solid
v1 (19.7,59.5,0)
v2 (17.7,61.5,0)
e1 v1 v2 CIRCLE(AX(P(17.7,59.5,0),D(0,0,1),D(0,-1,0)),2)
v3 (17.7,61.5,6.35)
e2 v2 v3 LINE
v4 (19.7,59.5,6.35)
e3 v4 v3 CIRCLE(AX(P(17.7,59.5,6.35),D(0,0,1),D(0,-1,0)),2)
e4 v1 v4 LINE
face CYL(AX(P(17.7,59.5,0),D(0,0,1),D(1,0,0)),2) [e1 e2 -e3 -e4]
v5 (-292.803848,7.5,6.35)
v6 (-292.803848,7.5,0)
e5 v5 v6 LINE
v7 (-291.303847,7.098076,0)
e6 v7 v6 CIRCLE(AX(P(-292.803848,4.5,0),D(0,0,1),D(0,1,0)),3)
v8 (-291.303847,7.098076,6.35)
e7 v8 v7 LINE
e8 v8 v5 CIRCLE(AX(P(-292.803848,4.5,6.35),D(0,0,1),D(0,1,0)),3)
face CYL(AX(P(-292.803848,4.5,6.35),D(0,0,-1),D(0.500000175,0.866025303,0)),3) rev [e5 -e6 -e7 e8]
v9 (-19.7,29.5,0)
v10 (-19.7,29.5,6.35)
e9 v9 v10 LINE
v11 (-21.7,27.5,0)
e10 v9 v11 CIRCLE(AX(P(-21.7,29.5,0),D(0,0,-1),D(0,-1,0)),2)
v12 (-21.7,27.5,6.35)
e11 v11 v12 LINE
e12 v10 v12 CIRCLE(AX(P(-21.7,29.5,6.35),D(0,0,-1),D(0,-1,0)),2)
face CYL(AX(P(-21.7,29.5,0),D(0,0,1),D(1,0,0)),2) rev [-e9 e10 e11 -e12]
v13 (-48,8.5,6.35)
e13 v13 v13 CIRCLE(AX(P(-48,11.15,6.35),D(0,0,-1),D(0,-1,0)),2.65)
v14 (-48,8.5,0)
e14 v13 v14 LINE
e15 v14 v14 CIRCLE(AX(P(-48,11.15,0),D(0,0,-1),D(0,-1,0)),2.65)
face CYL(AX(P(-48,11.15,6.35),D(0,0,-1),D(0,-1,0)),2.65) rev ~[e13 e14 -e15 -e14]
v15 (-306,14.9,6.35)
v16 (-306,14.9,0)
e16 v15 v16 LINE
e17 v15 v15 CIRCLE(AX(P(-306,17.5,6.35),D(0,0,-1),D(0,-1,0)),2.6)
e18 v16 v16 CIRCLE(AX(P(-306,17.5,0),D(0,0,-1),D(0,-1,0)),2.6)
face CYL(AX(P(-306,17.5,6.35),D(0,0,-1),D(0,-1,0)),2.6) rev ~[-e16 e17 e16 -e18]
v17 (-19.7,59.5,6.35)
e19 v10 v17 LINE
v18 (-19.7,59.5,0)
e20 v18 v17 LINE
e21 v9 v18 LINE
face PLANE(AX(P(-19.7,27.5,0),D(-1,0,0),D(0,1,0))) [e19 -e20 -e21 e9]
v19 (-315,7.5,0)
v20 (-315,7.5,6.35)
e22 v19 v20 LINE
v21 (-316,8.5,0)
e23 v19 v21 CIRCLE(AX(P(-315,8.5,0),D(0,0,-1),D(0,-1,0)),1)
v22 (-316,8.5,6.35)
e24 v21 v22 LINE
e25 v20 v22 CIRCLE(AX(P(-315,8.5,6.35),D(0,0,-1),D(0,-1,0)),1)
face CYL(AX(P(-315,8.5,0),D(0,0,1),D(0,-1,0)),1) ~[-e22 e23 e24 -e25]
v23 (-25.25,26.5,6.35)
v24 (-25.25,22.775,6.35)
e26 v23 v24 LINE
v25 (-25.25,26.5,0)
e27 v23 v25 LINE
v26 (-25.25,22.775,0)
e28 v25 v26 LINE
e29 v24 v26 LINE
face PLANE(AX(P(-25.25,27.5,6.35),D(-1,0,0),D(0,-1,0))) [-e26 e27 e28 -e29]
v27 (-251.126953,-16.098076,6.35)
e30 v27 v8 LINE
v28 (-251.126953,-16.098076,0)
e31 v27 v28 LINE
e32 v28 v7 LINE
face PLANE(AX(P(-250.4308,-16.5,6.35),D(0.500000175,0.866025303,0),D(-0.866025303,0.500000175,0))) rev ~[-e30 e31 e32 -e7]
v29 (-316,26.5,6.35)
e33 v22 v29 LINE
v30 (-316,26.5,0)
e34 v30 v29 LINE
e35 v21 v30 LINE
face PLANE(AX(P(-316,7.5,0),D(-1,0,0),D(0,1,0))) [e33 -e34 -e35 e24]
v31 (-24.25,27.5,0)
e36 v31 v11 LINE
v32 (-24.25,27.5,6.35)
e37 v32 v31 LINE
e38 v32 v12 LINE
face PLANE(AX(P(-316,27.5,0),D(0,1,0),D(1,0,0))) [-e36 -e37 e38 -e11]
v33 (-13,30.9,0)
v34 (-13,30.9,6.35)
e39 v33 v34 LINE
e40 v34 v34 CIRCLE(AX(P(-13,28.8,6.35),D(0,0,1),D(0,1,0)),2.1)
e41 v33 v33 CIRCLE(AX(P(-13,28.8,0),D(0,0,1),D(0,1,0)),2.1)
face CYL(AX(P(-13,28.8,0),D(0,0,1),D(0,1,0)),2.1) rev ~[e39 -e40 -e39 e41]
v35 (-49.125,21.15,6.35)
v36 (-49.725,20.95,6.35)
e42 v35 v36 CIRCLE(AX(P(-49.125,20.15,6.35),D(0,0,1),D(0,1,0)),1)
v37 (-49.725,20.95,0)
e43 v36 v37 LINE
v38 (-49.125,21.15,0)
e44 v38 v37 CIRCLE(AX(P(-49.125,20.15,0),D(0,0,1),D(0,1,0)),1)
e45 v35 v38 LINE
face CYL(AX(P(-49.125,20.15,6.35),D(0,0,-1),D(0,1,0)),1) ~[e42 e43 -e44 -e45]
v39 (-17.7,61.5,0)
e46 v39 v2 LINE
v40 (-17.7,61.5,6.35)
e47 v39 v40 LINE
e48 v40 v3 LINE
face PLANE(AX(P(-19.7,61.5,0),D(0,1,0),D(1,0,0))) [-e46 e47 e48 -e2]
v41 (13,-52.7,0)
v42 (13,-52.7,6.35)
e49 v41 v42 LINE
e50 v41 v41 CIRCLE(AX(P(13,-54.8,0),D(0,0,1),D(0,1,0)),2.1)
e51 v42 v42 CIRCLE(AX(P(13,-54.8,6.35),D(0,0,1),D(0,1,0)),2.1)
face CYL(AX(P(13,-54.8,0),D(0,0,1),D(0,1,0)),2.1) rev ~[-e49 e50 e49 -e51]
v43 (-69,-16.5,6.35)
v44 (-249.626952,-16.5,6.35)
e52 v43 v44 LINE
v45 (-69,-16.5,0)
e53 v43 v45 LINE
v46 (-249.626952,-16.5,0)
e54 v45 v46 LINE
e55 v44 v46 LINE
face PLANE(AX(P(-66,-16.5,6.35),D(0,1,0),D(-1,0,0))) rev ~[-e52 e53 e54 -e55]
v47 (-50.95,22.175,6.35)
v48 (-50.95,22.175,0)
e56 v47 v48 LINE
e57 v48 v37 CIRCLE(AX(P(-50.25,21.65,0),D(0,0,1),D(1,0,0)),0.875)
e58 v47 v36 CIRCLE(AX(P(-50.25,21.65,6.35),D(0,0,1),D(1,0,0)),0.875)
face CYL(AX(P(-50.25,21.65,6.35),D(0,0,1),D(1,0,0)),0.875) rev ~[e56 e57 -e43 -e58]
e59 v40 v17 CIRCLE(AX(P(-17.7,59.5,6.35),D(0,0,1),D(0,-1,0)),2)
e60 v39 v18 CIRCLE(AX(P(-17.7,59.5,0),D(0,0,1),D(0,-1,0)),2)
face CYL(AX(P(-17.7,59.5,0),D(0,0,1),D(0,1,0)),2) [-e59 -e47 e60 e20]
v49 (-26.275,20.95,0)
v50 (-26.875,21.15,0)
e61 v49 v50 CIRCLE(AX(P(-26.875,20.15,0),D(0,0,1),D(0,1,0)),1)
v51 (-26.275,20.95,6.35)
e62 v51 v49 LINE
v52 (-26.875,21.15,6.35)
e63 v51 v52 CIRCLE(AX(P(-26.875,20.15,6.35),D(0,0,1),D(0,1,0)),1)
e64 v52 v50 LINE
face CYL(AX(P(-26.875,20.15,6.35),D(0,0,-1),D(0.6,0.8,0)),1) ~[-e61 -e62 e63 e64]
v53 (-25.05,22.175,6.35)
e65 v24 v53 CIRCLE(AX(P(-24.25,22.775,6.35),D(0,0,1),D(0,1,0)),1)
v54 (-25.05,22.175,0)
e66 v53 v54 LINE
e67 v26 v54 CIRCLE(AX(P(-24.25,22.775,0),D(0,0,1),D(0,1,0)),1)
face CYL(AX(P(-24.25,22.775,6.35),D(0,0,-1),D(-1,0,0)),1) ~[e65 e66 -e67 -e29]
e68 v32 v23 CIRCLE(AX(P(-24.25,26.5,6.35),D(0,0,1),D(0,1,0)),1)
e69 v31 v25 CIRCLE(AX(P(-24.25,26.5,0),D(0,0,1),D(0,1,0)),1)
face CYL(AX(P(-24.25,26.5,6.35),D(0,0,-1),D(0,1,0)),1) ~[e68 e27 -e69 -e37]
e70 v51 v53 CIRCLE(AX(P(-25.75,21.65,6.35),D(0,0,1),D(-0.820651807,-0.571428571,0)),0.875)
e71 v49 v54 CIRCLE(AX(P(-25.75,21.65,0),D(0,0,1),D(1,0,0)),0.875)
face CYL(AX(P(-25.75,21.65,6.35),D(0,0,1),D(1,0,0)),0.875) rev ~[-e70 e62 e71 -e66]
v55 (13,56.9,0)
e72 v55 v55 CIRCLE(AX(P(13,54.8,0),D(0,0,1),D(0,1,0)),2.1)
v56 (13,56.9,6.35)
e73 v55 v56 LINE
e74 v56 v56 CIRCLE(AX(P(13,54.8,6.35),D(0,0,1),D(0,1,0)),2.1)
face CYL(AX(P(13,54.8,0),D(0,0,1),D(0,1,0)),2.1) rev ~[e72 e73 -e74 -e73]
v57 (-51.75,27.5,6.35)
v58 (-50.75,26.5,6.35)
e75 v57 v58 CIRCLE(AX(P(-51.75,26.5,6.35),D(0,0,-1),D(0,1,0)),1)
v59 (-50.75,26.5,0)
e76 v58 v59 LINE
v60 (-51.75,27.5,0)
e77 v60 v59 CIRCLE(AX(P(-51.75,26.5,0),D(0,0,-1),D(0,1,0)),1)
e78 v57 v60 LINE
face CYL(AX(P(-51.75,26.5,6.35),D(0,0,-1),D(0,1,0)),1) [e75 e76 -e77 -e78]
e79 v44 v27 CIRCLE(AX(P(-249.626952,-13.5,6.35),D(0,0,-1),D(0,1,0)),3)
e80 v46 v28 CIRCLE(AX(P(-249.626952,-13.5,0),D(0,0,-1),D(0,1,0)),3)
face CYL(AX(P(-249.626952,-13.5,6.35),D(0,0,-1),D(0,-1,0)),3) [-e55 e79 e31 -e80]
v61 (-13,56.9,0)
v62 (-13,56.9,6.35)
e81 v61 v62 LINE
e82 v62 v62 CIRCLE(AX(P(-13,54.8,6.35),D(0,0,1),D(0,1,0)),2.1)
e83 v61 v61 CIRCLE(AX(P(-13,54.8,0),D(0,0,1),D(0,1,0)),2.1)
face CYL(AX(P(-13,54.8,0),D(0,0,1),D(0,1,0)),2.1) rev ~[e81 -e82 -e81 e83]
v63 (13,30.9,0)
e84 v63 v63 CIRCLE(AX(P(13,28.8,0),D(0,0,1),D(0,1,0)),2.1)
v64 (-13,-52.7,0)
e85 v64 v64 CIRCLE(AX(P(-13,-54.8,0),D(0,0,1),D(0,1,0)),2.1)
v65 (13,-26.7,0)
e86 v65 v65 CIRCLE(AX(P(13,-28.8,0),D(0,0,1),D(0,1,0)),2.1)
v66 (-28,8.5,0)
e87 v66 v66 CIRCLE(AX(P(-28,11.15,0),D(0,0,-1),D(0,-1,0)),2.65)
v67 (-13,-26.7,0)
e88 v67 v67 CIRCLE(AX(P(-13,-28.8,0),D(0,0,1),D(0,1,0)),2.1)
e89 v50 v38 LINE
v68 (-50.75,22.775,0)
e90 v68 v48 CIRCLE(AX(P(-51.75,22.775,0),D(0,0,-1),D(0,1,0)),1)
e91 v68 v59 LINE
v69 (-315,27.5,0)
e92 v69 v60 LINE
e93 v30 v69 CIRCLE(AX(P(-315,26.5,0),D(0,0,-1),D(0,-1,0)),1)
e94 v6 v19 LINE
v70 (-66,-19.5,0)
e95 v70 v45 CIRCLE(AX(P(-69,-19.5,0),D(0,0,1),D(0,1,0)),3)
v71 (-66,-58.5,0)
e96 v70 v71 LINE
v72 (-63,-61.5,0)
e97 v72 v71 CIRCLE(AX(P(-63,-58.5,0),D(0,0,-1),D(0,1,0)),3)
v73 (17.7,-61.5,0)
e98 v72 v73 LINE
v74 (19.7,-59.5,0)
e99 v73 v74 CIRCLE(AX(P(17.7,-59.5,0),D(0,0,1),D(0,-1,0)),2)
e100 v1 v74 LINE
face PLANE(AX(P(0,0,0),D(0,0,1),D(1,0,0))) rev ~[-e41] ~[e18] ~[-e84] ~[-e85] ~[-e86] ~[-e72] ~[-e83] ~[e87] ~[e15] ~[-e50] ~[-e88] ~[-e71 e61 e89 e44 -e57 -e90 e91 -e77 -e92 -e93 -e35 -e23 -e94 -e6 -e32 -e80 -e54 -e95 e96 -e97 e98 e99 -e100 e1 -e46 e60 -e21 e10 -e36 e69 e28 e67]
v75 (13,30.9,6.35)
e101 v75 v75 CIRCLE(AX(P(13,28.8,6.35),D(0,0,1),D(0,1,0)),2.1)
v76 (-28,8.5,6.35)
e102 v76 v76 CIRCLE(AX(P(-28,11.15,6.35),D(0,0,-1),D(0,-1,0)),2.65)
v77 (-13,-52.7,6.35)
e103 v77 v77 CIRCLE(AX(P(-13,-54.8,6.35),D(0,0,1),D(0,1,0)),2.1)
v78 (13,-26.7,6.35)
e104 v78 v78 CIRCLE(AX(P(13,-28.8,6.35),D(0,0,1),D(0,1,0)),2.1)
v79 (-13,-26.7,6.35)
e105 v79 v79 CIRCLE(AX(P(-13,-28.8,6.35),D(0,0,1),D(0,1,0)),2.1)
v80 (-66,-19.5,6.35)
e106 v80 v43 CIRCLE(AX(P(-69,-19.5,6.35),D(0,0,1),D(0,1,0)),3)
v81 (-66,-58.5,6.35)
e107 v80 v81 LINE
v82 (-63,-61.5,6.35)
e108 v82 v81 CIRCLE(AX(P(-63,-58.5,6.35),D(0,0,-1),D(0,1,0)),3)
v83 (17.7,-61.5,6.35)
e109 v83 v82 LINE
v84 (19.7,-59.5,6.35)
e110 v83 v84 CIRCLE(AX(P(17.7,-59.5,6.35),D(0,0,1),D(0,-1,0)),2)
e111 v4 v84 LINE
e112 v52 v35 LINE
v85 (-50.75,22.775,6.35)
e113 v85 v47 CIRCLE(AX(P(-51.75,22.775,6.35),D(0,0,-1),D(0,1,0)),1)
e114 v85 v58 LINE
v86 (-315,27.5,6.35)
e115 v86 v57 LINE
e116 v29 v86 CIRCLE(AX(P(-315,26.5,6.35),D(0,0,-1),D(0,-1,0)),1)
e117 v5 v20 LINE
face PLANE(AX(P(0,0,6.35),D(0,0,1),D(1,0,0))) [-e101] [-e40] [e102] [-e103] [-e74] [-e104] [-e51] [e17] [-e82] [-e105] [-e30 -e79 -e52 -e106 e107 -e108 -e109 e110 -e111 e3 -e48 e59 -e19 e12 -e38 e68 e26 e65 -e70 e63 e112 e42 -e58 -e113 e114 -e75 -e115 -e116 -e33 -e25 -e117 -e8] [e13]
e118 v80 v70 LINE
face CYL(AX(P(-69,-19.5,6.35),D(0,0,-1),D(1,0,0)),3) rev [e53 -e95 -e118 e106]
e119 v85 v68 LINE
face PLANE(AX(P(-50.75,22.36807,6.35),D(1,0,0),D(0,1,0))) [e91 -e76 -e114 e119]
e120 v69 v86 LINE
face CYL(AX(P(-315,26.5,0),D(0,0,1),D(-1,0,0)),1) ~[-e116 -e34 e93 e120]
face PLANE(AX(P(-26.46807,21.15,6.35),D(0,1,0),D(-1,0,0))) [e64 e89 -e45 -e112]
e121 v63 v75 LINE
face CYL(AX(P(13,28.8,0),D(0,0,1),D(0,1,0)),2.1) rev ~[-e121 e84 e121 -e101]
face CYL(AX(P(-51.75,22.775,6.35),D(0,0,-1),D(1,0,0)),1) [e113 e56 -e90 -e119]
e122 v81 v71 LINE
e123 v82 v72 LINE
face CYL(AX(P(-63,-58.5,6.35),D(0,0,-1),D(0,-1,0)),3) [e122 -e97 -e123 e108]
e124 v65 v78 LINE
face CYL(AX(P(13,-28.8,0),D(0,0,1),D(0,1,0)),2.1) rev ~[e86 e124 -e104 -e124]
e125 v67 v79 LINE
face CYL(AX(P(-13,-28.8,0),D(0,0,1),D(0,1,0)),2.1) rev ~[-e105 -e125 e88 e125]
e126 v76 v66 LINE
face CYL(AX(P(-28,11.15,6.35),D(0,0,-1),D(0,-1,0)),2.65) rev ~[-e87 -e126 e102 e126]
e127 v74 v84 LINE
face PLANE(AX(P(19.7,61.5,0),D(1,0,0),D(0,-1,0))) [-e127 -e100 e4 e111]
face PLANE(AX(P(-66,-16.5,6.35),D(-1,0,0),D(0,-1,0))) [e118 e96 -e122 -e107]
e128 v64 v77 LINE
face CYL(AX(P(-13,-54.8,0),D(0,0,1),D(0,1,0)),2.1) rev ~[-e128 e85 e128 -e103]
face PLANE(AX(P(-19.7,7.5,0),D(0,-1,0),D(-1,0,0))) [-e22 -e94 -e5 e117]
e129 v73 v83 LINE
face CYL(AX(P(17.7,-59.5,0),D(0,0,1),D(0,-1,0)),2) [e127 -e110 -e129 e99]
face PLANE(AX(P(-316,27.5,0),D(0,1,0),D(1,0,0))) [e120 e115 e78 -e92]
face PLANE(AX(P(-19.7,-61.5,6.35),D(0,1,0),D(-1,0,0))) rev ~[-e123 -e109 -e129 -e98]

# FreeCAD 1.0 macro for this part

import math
import FreeCAD as App
import Part
import Sketcher
Q = App.Units.Quantity


def edges_at(feature, points):
    """Names of the edges that pass closest to the given points."""
    edges = feature.Shape.Edges
    near = lambda p: min(range(len(edges)), key=lambda i: edges[i].distToShape(Part.Vertex(*p))[0])
    return sorted({f"Edge{near(p) + 1}" for p in points})

doc = App.newDocument("Part")
body = doc.addObject("PartDesign::Body", "Body")

sketch1 = doc.addObject("Sketcher::SketchObject", "Sketch")
body.addObject(sketch1)
sketch1.AttachmentSupport = (doc.XY_Plane, [""])
sketch1.MapMode = "FlatFace"
sketch1.addGeometry([
    Part.LineSegment(App.Vector(-20, -62, 0), App.Vector(20, -62, 0)),
    Part.LineSegment(App.Vector(20, -62, 0), App.Vector(20, 62, 0)),
    Part.LineSegment(App.Vector(20, 62, 0), App.Vector(-20, 62, 0)),
    Part.LineSegment(App.Vector(-20, 62, 0), App.Vector(-20, 28, 0)),
    Part.LineSegment(App.Vector(-20, 28, 0), App.Vector(-316, 28, 0)),
    Part.LineSegment(App.Vector(-316, 28, 0), App.Vector(-316, 8, 0)),
    Part.LineSegment(App.Vector(-316, 8, 0), App.Vector(-20, 8, 0)),
    Part.LineSegment(App.Vector(-20, 8, 0), App.Vector(-20, -62, 0)),
], False)
sketch1.addConstraint([
    Sketcher.Constraint("Coincident", 0, 2, 1, 1),
    Sketcher.Constraint("Coincident", 1, 2, 2, 1),
    Sketcher.Constraint("Coincident", 2, 2, 3, 1),
    Sketcher.Constraint("Coincident", 3, 2, 4, 1),
    Sketcher.Constraint("Coincident", 4, 2, 5, 1),
    Sketcher.Constraint("Coincident", 5, 2, 6, 1),
    Sketcher.Constraint("Coincident", 6, 2, 7, 1),
    Sketcher.Constraint("Coincident", 7, 2, 0, 1),
    Sketcher.Constraint("Horizontal", 0),
    Sketcher.Constraint("Vertical", 1),
    Sketcher.Constraint("Horizontal", 2),
    Sketcher.Constraint("Vertical", 3),
    Sketcher.Constraint("Horizontal", 4),
    Sketcher.Constraint("Vertical", 5),
    Sketcher.Constraint("Horizontal", 6),
    Sketcher.Constraint("Vertical", 7),
    Sketcher.Constraint("Symmetric", 0, 2, 2, 2, -1, 1),
    Sketcher.Constraint("Vertical", 3, 2, 6, 2),
    Sketcher.Constraint("DistanceY", 5, 2, 5, 1, 20.0),
    Sketcher.Constraint("DistanceX", 0, 1, 0, 2, 39.4),
    Sketcher.Constraint("DistanceX", 4, 2, -1, 1, 316.0),
    Sketcher.Constraint("DistanceY", 1, 1, 1, 2, 123.0),
    Sketcher.Constraint("DistanceY", 3, 2, 3, 1, 34.0),
])
pad1 = doc.addObject("PartDesign::Pad", "Pad")
body.addObject(pad1)
pad1.Profile = sketch1
pad1.Length = 6.35

sketch2 = doc.addObject("Sketcher::SketchObject", "Sketch001")
body.addObject(sketch2)
sketch2.AttachmentSupport = (doc.XY_Plane, [""])
sketch2.MapMode = "FlatFace"
sketch2.AttachmentOffset = App.Placement(App.Vector(0, 0, 6.35), App.Rotation())
sketch2.addGeometry([
    Part.LineSegment(App.Vector(-66, -62, 0), App.Vector(-20, -62, 0)),
    Part.LineSegment(App.Vector(-20, -62, 0), App.Vector(-20, 8, 0)),
    Part.LineSegment(App.Vector(-20, 8, 0), App.Vector(-292, 8, 0)),
    Part.LineSegment(App.Vector(-292, 8, 0), App.Vector(-250, -16, 0)),
    Part.LineSegment(App.Vector(-250, -16, 0), App.Vector(-66, -16, 0)),
    Part.LineSegment(App.Vector(-66, -16, 0), App.Vector(-66, -62, 0)),
], False)
sketch2.addConstraint([
    Sketcher.Constraint("Coincident", 0, 2, 1, 1),
    Sketcher.Constraint("Coincident", 1, 2, 2, 1),
    Sketcher.Constraint("Coincident", 2, 2, 3, 1),
    Sketcher.Constraint("Coincident", 3, 2, 4, 1),
    Sketcher.Constraint("Coincident", 4, 2, 5, 1),
    Sketcher.Constraint("Coincident", 5, 2, 0, 1),
    Sketcher.Constraint("Horizontal", 0),
    Sketcher.Constraint("Vertical", 1),
    Sketcher.Constraint("Horizontal", 2),
    Sketcher.Constraint("Horizontal", 4),
    Sketcher.Constraint("Vertical", 5),
    Sketcher.Constraint("DistanceY", 3, 2, 2, 2, 24.0),
    Sketcher.Constraint("DistanceY", 1, 1, 1, 2, 69.0),
    Sketcher.Constraint("Angle", 3, Q("-30 deg")),
    Sketcher.Constraint("DistanceX", 0, 1, 0, 2, 46.3),
    Sketcher.Constraint("DistanceX", 2, 2, 2, 1, 272.3),
    Sketcher.Constraint("DistanceX", 2, 2, -1, 1, 292.0),
    Sketcher.Constraint("DistanceY", 0, 2, -1, 1, 61.5),
])
pad2 = doc.addObject("PartDesign::Pad", "Pad001")
body.addObject(pad2)
pad2.Profile = sketch2
pad2.Length = 6.35
pad2.Reversed = True

sketch3 = doc.addObject("Sketcher::SketchObject", "Sketch002")
body.addObject(sketch3)
sketch3.AttachmentSupport = (doc.XY_Plane, [""])
sketch3.MapMode = "FlatFace"
sketch3.addGeometry([
    Part.Circle(App.Vector(-13, 54.8, 0), App.Vector(0, 0, 1), 2.1),
    Part.Circle(App.Vector(13, 54.8, 0), App.Vector(0, 0, 1), 2.1),
    Part.Circle(App.Vector(13, 28.8, 0), App.Vector(0, 0, 1), 2.1),
    Part.Circle(App.Vector(-13, 28.8, 0), App.Vector(0, 0, 1), 2.1),
    Part.Circle(App.Vector(-13, -28.8, 0), App.Vector(0, 0, 1), 2.1),
    Part.Circle(App.Vector(13, -28.8, 0), App.Vector(0, 0, 1), 2.1),
    Part.Circle(App.Vector(13, -54.8, 0), App.Vector(0, 0, 1), 2.1),
    Part.Circle(App.Vector(-13, -54.8, 0), App.Vector(0, 0, 1), 2.1),
], False)
sketch3.addConstraint([
    Sketcher.Constraint("Equal", 0, 1),
    Sketcher.Constraint("Equal", 1, 2),
    Sketcher.Constraint("Equal", 2, 3),
    Sketcher.Constraint("Equal", 3, 4),
    Sketcher.Constraint("Equal", 4, 5),
    Sketcher.Constraint("Equal", 5, 6),
    Sketcher.Constraint("Equal", 6, 7),
    Sketcher.Constraint("Symmetric", 2, 3, 4, 3, -1, 1),
    Sketcher.Constraint("Symmetric", 3, 3, 5, 3, -1, 1),
    Sketcher.Constraint("Symmetric", 0, 3, 6, 3, -1, 1),
    Sketcher.Constraint("Symmetric", 1, 3, 7, 3, -1, 1),
    Sketcher.Constraint("Symmetric", 0, 3, 1, 3, -2),
    Sketcher.Constraint("Symmetric", 2, 3, 3, 3, -2),
    Sketcher.Constraint("Vertical", 1, 3, 2, 3),
    Sketcher.Constraint("Diameter", 0, 4.2),
    Sketcher.Constraint("DistanceX", 0, 3, -1, 1, 13.0),
    Sketcher.Constraint("DistanceY", 2, 3, 1, 3, 26.0),
    Sketcher.Constraint("DistanceY", -1, 1, 0, 3, 54.8),
])
doc.recompute()
hole = doc.addObject("PartDesign::Hole", "Hole")
body.addObject(hole)
hole.Profile = sketch3
hole.ThreadType = "None"
hole.Diameter = 4.2
hole.DepthType = "ThroughAll"
hole.Reversed = True

sketch4 = doc.addObject("Sketcher::SketchObject", "Sketch003")
body.addObject(sketch4)
sketch4.AttachmentSupport = (doc.XY_Plane, [""])
sketch4.MapMode = "FlatFace"
sketch4.AttachmentOffset = App.Placement(App.Vector(0, 0, 6.35), App.Rotation())
sketch4.addGeometry(Part.Circle(App.Vector(-306, 17.5, 0), App.Vector(0, 0, 1), 2.6), False)
sketch4.addConstraint([
    Sketcher.Constraint("Diameter", 0, 5.2),
    Sketcher.Constraint("DistanceX", 0, 3, -1, 1, 306.0),
    Sketcher.Constraint("DistanceY", -1, 1, 0, 3, 17.5),
])
doc.recompute()
hole2 = doc.addObject("PartDesign::Hole", "Hole001")
body.addObject(hole2)
hole2.Profile = sketch4
hole2.ThreadType = "None"
hole2.Diameter = 5.2
hole2.DepthType = "ThroughAll"

sketch5 = doc.addObject("Sketcher::SketchObject", "Sketch004")
body.addObject(sketch5)
sketch5.AttachmentSupport = (doc.XY_Plane, [""])
sketch5.MapMode = "FlatFace"
sketch5.AttachmentOffset = App.Placement(App.Vector(0, 0, 6.35), App.Rotation())
sketch5.addGeometry([
    Part.LineSegment(App.Vector(-25.2, 27.5, 0), App.Vector(-50.8, 27.5, 0)),
    Part.LineSegment(App.Vector(-50.8, 27.5, 0), App.Vector(-50.8, 22.4, 0)),
    Part.ArcOfCircle(Part.Circle(App.Vector(-50.2, 21.6, 0), App.Vector(0, 0, 1), 0.9), math.radians(125), math.radians(325)),
    Part.LineSegment(App.Vector(-49.5, 21.1, 0), App.Vector(-26.5, 21.1, 0)),
    Part.ArcOfCircle(Part.Circle(App.Vector(-25.8, 21.6, 0), App.Vector(0, 0, 1), 0.9), math.radians(-145), math.radians(55)),
    Part.LineSegment(App.Vector(-25.2, 22.4, 0), App.Vector(-25.2, 27.5, 0)),
], False)
sketch5.addConstraint([
    Sketcher.Constraint("Coincident", 0, 2, 1, 1),
    Sketcher.Constraint("Coincident", 1, 2, 2, 1),
    Sketcher.Constraint("Coincident", 2, 2, 3, 1),
    Sketcher.Constraint("Coincident", 3, 2, 4, 1),
    Sketcher.Constraint("Coincident", 4, 2, 5, 1),
    Sketcher.Constraint("Coincident", 5, 2, 0, 1),
    Sketcher.Constraint("Horizontal", 0),
    Sketcher.Constraint("Vertical", 1),
    Sketcher.Constraint("Horizontal", 3),
    Sketcher.Constraint("Vertical", 5),
    Sketcher.Constraint("Equal", 2, 4),
    Sketcher.Constraint("Horizontal", 2, 3, 4, 3),
    Sketcher.Constraint("Horizontal", 1, 2, 4, 2),
    Sketcher.Constraint("DistanceX", 0, 2, 0, 1, 25.5),
    Sketcher.Constraint("Radius", 2, 0.875),
    Sketcher.Constraint("DistanceX", 0, 2, 2, 3, 0.5),
    Sketcher.Constraint("DistanceY", 2, 2, 2, 3, 0.5),
    Sketcher.Constraint("DistanceY", -1, 1, 0, 2, 27.5),
    Sketcher.Constraint("DistanceY", 1, 2, 1, 1, 5.132),
    Sketcher.Constraint("DistanceX", 2, 3, -1, 1, 50.25),
])
pocket1 = doc.addObject("PartDesign::Pocket", "Pocket")
body.addObject(pocket1)
pocket1.Profile = sketch5
pocket1.Type = "ThroughAll"

sketch6 = doc.addObject("Sketcher::SketchObject", "Sketch005")
body.addObject(sketch6)
sketch6.AttachmentSupport = (doc.XY_Plane, [""])
sketch6.MapMode = "FlatFace"
sketch6.AttachmentOffset = App.Placement(App.Vector(0, 0, 6.35), App.Rotation())
sketch6.addGeometry([
    Part.Circle(App.Vector(-48, 11.2, 0), App.Vector(0, 0, 1), 2.6),
    Part.Circle(App.Vector(-28, 11.2, 0), App.Vector(0, 0, 1), 2.6),
], False)
sketch6.addConstraint([
    Sketcher.Constraint("Equal", 0, 1),
    Sketcher.Constraint("Horizontal", 0, 3, 1, 3),
    Sketcher.Constraint("Diameter", 0, 5.3),
    Sketcher.Constraint("DistanceX", 0, 3, -1, 1, 48.0),
    Sketcher.Constraint("DistanceX", 1, 3, -1, 1, 28.0),
    Sketcher.Constraint("DistanceY", -1, 1, 0, 3, 11.15),
])
doc.recompute()
hole3 = doc.addObject("PartDesign::Hole", "Hole002")
body.addObject(hole3)
hole3.Profile = sketch6
hole3.ThreadType = "None"
hole3.Diameter = 5.3
hole3.DepthType = "ThroughAll"
doc.recompute()

fillet = doc.addObject("PartDesign::Fillet", "Fillet")
body.addObject(fillet)
fillet.Base = (hole3, edges_at(hole3, [
    (-316, 27.5, 3.175),
    (-316, 7.5, 3.175),
    (-50.75, 27.5, 3.175),
    (-50.75, 22.368, 3.175),
    (-49.532, 21.15, 3.175),
    (-26.468, 21.15, 3.175),
    (-25.25, 22.368, 3.175),
    (-25.25, 27.5, 3.175),
]))
fillet.Radius = 1
doc.recompute()

fillet2 = doc.addObject("PartDesign::Fillet", "Fillet001")
body.addObject(fillet2)
fillet2.Base = (fillet, edges_at(fillet, [
    (-66, -61.5, 3.175),
    (-250.431, -16.5, 3.175),
    (-66, -16.5, 3.175),
    (-292, 7.5, 3.175),
]))
fillet2.Radius = 3
doc.recompute()

fillet3 = doc.addObject("PartDesign::Fillet", "Fillet002")
body.addObject(fillet3)
fillet3.Base = (fillet2, edges_at(fillet2, [
    (-19.7, 27.5, 3.175),
    (-19.7, 61.5, 3.175),
    (19.7, 61.5, 3.175),
    (19.7, -61.5, 3.175),
]))
fillet3.Radius = 2

doc.recompute()
